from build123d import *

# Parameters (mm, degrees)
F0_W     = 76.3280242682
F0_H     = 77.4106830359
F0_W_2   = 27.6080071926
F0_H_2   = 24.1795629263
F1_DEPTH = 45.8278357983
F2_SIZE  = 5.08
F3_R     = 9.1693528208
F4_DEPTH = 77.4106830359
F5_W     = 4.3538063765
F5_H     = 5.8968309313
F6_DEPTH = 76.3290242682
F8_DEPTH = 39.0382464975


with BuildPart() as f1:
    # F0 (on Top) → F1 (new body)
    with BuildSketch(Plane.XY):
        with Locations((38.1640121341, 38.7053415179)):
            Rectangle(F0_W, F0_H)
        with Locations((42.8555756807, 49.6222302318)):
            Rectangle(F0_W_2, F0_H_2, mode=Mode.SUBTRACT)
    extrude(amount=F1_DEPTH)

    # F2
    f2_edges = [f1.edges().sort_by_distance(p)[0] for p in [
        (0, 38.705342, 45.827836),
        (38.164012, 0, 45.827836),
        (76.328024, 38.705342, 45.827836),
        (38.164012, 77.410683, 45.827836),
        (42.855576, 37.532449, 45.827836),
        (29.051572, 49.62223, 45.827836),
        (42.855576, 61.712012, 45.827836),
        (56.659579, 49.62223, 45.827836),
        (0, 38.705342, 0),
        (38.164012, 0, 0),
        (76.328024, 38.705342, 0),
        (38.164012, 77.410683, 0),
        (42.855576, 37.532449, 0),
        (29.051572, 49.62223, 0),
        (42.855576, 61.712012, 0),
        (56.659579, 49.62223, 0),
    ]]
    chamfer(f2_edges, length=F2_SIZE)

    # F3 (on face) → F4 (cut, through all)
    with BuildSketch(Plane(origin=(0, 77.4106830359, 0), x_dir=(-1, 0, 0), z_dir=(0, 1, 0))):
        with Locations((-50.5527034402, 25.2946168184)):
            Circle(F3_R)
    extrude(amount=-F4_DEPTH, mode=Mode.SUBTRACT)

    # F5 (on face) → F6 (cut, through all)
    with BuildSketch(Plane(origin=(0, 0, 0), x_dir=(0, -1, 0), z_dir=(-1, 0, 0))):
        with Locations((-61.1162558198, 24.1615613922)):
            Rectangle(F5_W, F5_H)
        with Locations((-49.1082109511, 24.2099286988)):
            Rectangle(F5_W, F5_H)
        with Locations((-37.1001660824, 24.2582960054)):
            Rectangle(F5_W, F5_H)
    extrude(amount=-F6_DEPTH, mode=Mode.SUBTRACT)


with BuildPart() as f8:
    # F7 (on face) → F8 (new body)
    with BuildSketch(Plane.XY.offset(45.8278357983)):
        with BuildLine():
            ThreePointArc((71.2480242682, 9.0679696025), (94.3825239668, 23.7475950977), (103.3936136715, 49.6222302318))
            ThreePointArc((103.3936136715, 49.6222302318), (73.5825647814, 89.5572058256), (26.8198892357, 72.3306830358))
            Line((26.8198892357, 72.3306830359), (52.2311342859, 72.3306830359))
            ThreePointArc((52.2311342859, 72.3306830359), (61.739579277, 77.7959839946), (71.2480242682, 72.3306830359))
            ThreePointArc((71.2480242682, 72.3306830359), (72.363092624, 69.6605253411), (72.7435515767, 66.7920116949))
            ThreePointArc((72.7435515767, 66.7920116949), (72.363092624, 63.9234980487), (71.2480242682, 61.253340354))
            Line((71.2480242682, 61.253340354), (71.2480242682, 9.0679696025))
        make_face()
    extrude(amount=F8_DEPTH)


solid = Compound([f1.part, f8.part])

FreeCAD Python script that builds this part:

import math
import FreeCAD as App
import Part
import Sketcher

V = App.Vector
Q = App.Units.Quantity


def edges_at(feature, points):
    """Names of the edges that pass closest to the given points."""
    edges = feature.Shape.Edges
    near = lambda p: min(range(len(edges)), key=lambda i: edges[i].distToShape(Part.Vertex(*p))[0])
    return sorted({f"Edge{near(p) + 1}" for p in points})


def add_polygon(sketch, points):
    """Adds a closed chain of lines whose ends are joined by coincident constraints."""
    first, n = sketch.GeometryCount, len(points)
    for a, b in zip(points, points[1:] + points[:1]):
        sketch.addGeometry(Part.LineSegment(App.Vector(*a, 0), App.Vector(*b, 0)), False)
    for i in range(n):
        sketch.addConstraint(Sketcher.Constraint("Coincident", first + i, 2, first + (i + 1) % n, 1))

doc = App.newDocument("Part")
body = doc.addObject("PartDesign::Body", "Body")

# Sketch on XY plane
sketch1 = body.newObject("Sketcher::SketchObject", "Sketch")
sketch1.AttachmentSupport = (doc.getObject("XY_Plane"), [""])
sketch1.MapMode = "FlatFace"
add_polygon(sketch1, [(0, 77), (0, 0), (76, 0), (76, 77)])  # lines 0-3
add_polygon(sketch1, [(57, 38), (29, 38), (29, 62), (57, 62)])  # lines 4-7
sketch1.addConstraint([
    Sketcher.Constraint("Vertical", 0),
    Sketcher.Constraint("Horizontal", 1),
    Sketcher.Constraint("Vertical", 2),
    Sketcher.Constraint("Horizontal", 3),
    Sketcher.Constraint("Horizontal", 4),
    Sketcher.Constraint("Vertical", 5),
    Sketcher.Constraint("Horizontal", 6),
    Sketcher.Constraint("Vertical", 7),
    Sketcher.Constraint("Coincident", 0, 2, -1, 1),
    Sketcher.Constraint("DistanceX", 1, 1, 1, 2, 76.328024),
    Sketcher.Constraint("DistanceX", 4, 2, 4, 1, 27.608007),
    Sketcher.Constraint("DistanceY", 0, 2, 0, 1, 77.410683),
    Sketcher.Constraint("DistanceY", 5, 1, 5, 2, 24.179563),
    Sketcher.Constraint("DistanceY", -1, 1, 4, 2, 37.532449),
    Sketcher.Constraint("DistanceX", -1, 1, 6, 2, 56.659579),
])
pad1 = body.newObject("PartDesign::Pad", "Pad")
pad1.Profile = sketch1
pad1.Length = 45.827836
doc.recompute()

chamfer = body.newObject("PartDesign::Chamfer", "Chamfer")
chamfer.Base = (pad1, edges_at(pad1, [
    (0, 38.705, 45.828),
    (38.164, 0, 45.828),
    (76.328, 38.705, 45.828),
    (38.164, 77.411, 45.828),
    (42.856, 37.532, 45.828),
    (29.052, 49.622, 45.828),
    (42.856, 61.712, 45.828),
    (56.66, 49.622, 45.828),
    (0, 38.705, 0),
    (38.164, 0, 0),
    (76.328, 38.705, 0),
    (38.164, 77.411, 0),
    (42.856, 37.532, 0),
    (29.052, 49.622, 0),
    (42.856, 61.712, 0),
    (56.66, 49.622, 0),
]))
chamfer.Size = Q("0.2 in")

# Sketch on XZ plane
sketch2 = body.newObject("Sketcher::SketchObject", "Sketch001")
sketch2.AttachmentSupport = (doc.getObject("XZ_Plane"), [""])
sketch2.MapMode = "FlatFace"
sketch2.AttachmentOffset = App.Placement(V(0, 0, -77.410683), App.Rotation())
sketch2.addGeometry(Part.Circle(V(51, 25, 0), V(0, 0, 1), 9), False)
sketch2.addConstraint([
    Sketcher.Constraint("Diameter", 0, 18.338706),
    Sketcher.Constraint("DistanceX", -1, 1, 0, 3, 50.552703),
    Sketcher.Constraint("DistanceY", -1, 1, 0, 3, 25.294617),
])
pocket1 = body.newObject("PartDesign::Pocket", "Pocket")
pocket1.Profile = sketch2
pocket1.Type = "ThroughAll"
pocket1.Reversed = True

# Sketch on YZ plane
sketch3 = body.newObject("Sketcher::SketchObject", "Sketch002")
sketch3.AttachmentSupport = (doc.getObject("YZ_Plane"), [""])
sketch3.MapMode = "FlatFace"
add_polygon(sketch3, [(63.3, 27.1), (63.3, 21.2), (58.9, 21.2), (58.9, 27.1)])  # lines 0-3
add_polygon(sketch3, [(51.3, 27.2), (51.3, 21.3), (46.9, 21.3), (46.9, 27.2)])  # lines 4-7
add_polygon(sketch3, [(39.3, 27.2), (39.3, 21.3), (34.9, 21.3), (34.9, 27.2)])  # lines 8-11
sketch3.addConstraint([
    Sketcher.Constraint("Vertical", 0),
    Sketcher.Constraint("Horizontal", 1),
    Sketcher.Constraint("Vertical", 2),
    Sketcher.Constraint("Horizontal", 3),
    Sketcher.Constraint("Vertical", 4),
    Sketcher.Constraint("Horizontal", 5),
    Sketcher.Constraint("Vertical", 6),
    Sketcher.Constraint("Horizontal", 7),
    Sketcher.Constraint("Vertical", 8),
    Sketcher.Constraint("Horizontal", 9),
    Sketcher.Constraint("Vertical", 10),
    Sketcher.Constraint("Horizontal", 11),
    Sketcher.Constraint("Equal", 3, 5),
    Sketcher.Constraint("Equal", 7, 9),
    Sketcher.Constraint("Equal", 2, 4),
    Sketcher.Constraint("Equal", 6, 8),
    Sketcher.Constraint("DistanceY", 0, 2, 0, 1, 5.896831),
    Sketcher.Constraint("DistanceY", 1, 2, 6, 2, 5.945198),
    Sketcher.Constraint("DistanceY", 5, 2, 10, 2, 5.945198),
    Sketcher.Constraint("DistanceX", 1, 2, 1, 1, 4.353806),
    Sketcher.Constraint("DistanceX", -1, 1, 0, 2, 63.293159),
    Sketcher.Constraint("DistanceX", -1, 1, 8, 2, 39.277069),
    Sketcher.Constraint("DistanceY", -1, 1, 8, 2, 21.309881),
    Sketcher.Constraint("DistanceX", 4, 2, 1, 2, 7.654238),
])
pocket2 = body.newObject("PartDesign::Pocket", "Pocket001")
pocket2.Profile = sketch3
pocket2.Type = "ThroughAll"
pocket2.Reversed = True
body2 = doc.addObject("PartDesign::Body", "Body001")

# Sketch on XY plane
sketch4 = body2.newObject("Sketcher::SketchObject", "Sketch003")
sketch4.AttachmentSupport = (doc.getObject("XY_Plane001"), [""])
sketch4.MapMode = "FlatFace"
sketch4.AttachmentOffset = App.Placement(V(0, 0, 45.827836), App.Rotation())
sketch4.addGeometry([
    Part.ArcOfCircle(Part.Circle(V(62, 50, 0), V(0, 0, 1), 42), math.radians(-77), math.radians(0)),  # 0
    Part.ArcOfCircle(Part.Circle(V(62, 50, 0), V(0, 0, 1), 42), math.radians(0), math.radians(147)),  # 1
    Part.LineSegment(V(27, 72, 0), V(52, 72, 0)),  # 2
    Part.ArcOfCircle(Part.Circle(V(62, 67, 0), V(0, 0, 1), 11), math.radians(30), math.radians(150)),  # 3
    Part.ArcOfCircle(Part.Circle(V(62, 67, 0), V(0, 0, 1), 11), math.radians(0), math.radians(30)),  # 4
    Part.ArcOfCircle(Part.Circle(V(62, 67, 0), V(0, 0, 1), 11), math.radians(-30), math.radians(0)),  # 5
    Part.LineSegment(V(71, 61, 0), V(71, 9, 0)),  # 6
], False)
sketch4.addConstraint([
    Sketcher.Constraint("Tangent", 0, 2, 1, 1),
    Sketcher.Constraint("Coincident", 1, 2, 2, 1),
    Sketcher.Constraint("Coincident", 2, 2, 3, 2),
    Sketcher.Constraint("Tangent", 3, 1, 4, 2),
    Sketcher.Constraint("Tangent", 4, 1, 5, 2),
    Sketcher.Constraint("Coincident", 5, 1, 6, 1),
    Sketcher.Constraint("Coincident", 6, 2, 0, 1),
    Sketcher.Constraint("Horizontal", 2),
    Sketcher.Constraint("Vertical", 6),
    Sketcher.Constraint("Coincident", 5, 3, 3, 3),
    Sketcher.Constraint("Equal", 0, 1),
    Sketcher.Constraint("Horizontal", 1, 3, 0, 2),
    Sketcher.Constraint("Horizontal", 2, 2, 3, 1),
    Sketcher.Constraint("Horizontal", 5, 3, 4, 1),
    Sketcher.Constraint("Vertical", 1, 3, 3, 3),
    Sketcher.Constraint("Vertical", 3, 1, 5, 1),
    Sketcher.Constraint("Radius", 0, 41.654034),
    Sketcher.Constraint("Radius", 3, 11.003972),
    Sketcher.Constraint("DistanceY", 6, 2, 4, 1, Q("2.2726001 in")),
    Sketcher.Constraint("DistanceY", 6, 2, 6, 1, 52.185371),
    Sketcher.Constraint("DistanceX", -1, 1, 0, 3, 61.739579),
    Sketcher.Constraint("DistanceY", -1, 1, 0, 3, 49.62223),
])
pad2 = body2.newObject("PartDesign::Pad", "Pad001")
pad2.Profile = sketch4
pad2.Length = 39.038246

doc.recompute()
